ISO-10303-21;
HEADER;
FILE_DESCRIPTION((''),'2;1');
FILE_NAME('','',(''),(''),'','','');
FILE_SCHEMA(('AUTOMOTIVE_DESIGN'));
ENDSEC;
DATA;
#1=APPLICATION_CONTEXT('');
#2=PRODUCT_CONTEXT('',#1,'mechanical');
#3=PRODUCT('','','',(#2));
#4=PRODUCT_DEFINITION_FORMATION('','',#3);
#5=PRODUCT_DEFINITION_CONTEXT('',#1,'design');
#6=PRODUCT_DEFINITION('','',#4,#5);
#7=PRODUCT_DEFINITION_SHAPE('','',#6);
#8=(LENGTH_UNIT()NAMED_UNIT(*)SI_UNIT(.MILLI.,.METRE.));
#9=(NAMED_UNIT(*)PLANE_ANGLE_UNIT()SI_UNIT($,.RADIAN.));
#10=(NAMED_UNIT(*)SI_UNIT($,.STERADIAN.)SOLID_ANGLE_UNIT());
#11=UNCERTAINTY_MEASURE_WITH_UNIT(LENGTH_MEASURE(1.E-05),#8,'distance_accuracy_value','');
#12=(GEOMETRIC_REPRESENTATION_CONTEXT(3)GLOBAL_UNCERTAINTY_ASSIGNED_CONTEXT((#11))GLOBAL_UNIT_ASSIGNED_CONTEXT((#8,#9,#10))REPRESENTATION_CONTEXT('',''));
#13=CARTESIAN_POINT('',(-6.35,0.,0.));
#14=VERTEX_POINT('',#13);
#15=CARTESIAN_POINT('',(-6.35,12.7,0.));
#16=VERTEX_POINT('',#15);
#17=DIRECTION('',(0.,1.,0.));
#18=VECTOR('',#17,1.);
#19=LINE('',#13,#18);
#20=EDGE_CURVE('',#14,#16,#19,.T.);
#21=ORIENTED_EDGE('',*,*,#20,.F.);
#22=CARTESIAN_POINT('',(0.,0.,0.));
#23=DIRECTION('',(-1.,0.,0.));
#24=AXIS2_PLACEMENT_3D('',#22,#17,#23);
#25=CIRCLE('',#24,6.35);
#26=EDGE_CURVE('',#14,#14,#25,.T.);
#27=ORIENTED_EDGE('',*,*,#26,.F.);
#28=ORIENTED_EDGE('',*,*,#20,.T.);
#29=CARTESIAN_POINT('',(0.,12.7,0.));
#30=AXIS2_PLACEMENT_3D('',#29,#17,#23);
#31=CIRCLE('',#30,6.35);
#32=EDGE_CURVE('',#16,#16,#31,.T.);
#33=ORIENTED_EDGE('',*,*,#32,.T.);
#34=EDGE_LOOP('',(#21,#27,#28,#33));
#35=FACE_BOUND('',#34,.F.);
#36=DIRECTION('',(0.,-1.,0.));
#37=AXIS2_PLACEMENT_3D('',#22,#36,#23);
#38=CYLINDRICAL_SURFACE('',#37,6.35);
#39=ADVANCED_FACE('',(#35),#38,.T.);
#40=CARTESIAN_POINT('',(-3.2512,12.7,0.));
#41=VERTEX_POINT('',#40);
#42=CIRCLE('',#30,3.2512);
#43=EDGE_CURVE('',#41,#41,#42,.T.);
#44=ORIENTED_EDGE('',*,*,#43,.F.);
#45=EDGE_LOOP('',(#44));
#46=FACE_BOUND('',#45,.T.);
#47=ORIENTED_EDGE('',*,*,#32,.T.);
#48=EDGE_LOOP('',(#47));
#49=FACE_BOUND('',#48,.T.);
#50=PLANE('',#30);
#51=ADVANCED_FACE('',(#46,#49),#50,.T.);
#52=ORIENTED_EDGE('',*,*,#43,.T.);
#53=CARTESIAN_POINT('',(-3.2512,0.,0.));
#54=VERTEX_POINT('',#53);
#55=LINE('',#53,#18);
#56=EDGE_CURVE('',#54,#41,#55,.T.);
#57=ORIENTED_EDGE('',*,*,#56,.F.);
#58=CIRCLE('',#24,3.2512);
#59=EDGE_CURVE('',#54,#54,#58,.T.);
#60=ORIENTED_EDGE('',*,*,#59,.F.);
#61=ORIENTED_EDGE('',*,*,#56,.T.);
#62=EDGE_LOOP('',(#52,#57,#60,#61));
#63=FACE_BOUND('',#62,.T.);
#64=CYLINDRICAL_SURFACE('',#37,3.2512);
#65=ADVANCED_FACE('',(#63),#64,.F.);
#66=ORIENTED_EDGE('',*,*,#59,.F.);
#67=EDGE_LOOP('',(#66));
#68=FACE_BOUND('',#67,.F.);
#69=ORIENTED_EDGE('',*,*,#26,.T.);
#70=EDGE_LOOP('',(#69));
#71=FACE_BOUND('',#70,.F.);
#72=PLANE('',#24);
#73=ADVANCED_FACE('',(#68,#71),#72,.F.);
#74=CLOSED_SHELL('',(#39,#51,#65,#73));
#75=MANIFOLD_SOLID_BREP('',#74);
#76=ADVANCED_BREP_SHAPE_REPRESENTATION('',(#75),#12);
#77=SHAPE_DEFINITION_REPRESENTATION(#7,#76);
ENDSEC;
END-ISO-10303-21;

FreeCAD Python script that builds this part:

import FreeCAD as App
import Part
import Sketcher
Q = App.Units.Quantity

doc = App.newDocument("Part")
body = doc.addObject("PartDesign::Body", "Body")

# Sketch on XZ plane
sketch1 = body.newObject("Sketcher::SketchObject", "Sketch")
sketch1.AttachmentSupport = (doc.getObject("XZ_Plane"), [""])
sketch1.MapMode = "FlatFace"
sketch1.addGeometry(Part.Circle(App.Vector(0, 0, 0), App.Vector(0, 0, 1), 6.3), False)
sketch1.addGeometry(Part.Circle(App.Vector(0, 0, 0), App.Vector(0, 0, 1), 3.3), False)
sketch1.addConstraint(Sketcher.Constraint("Coincident", 0, 3, -1, 1))
sketch1.addConstraint(Sketcher.Constraint("Coincident", 1, 3, -1, 1))
sketch1.addConstraint(Sketcher.Constraint("Diameter", 0, Q("0.5 in")))
sketch1.addConstraint(Sketcher.Constraint("Diameter", 1, Q("0.256 in")))
pad1 = body.newObject("PartDesign::Pad", "Pad")
pad1.Profile = sketch1
pad1.Length = Q("0.5 in")
pad1.Reversed = True

doc.recompute()
